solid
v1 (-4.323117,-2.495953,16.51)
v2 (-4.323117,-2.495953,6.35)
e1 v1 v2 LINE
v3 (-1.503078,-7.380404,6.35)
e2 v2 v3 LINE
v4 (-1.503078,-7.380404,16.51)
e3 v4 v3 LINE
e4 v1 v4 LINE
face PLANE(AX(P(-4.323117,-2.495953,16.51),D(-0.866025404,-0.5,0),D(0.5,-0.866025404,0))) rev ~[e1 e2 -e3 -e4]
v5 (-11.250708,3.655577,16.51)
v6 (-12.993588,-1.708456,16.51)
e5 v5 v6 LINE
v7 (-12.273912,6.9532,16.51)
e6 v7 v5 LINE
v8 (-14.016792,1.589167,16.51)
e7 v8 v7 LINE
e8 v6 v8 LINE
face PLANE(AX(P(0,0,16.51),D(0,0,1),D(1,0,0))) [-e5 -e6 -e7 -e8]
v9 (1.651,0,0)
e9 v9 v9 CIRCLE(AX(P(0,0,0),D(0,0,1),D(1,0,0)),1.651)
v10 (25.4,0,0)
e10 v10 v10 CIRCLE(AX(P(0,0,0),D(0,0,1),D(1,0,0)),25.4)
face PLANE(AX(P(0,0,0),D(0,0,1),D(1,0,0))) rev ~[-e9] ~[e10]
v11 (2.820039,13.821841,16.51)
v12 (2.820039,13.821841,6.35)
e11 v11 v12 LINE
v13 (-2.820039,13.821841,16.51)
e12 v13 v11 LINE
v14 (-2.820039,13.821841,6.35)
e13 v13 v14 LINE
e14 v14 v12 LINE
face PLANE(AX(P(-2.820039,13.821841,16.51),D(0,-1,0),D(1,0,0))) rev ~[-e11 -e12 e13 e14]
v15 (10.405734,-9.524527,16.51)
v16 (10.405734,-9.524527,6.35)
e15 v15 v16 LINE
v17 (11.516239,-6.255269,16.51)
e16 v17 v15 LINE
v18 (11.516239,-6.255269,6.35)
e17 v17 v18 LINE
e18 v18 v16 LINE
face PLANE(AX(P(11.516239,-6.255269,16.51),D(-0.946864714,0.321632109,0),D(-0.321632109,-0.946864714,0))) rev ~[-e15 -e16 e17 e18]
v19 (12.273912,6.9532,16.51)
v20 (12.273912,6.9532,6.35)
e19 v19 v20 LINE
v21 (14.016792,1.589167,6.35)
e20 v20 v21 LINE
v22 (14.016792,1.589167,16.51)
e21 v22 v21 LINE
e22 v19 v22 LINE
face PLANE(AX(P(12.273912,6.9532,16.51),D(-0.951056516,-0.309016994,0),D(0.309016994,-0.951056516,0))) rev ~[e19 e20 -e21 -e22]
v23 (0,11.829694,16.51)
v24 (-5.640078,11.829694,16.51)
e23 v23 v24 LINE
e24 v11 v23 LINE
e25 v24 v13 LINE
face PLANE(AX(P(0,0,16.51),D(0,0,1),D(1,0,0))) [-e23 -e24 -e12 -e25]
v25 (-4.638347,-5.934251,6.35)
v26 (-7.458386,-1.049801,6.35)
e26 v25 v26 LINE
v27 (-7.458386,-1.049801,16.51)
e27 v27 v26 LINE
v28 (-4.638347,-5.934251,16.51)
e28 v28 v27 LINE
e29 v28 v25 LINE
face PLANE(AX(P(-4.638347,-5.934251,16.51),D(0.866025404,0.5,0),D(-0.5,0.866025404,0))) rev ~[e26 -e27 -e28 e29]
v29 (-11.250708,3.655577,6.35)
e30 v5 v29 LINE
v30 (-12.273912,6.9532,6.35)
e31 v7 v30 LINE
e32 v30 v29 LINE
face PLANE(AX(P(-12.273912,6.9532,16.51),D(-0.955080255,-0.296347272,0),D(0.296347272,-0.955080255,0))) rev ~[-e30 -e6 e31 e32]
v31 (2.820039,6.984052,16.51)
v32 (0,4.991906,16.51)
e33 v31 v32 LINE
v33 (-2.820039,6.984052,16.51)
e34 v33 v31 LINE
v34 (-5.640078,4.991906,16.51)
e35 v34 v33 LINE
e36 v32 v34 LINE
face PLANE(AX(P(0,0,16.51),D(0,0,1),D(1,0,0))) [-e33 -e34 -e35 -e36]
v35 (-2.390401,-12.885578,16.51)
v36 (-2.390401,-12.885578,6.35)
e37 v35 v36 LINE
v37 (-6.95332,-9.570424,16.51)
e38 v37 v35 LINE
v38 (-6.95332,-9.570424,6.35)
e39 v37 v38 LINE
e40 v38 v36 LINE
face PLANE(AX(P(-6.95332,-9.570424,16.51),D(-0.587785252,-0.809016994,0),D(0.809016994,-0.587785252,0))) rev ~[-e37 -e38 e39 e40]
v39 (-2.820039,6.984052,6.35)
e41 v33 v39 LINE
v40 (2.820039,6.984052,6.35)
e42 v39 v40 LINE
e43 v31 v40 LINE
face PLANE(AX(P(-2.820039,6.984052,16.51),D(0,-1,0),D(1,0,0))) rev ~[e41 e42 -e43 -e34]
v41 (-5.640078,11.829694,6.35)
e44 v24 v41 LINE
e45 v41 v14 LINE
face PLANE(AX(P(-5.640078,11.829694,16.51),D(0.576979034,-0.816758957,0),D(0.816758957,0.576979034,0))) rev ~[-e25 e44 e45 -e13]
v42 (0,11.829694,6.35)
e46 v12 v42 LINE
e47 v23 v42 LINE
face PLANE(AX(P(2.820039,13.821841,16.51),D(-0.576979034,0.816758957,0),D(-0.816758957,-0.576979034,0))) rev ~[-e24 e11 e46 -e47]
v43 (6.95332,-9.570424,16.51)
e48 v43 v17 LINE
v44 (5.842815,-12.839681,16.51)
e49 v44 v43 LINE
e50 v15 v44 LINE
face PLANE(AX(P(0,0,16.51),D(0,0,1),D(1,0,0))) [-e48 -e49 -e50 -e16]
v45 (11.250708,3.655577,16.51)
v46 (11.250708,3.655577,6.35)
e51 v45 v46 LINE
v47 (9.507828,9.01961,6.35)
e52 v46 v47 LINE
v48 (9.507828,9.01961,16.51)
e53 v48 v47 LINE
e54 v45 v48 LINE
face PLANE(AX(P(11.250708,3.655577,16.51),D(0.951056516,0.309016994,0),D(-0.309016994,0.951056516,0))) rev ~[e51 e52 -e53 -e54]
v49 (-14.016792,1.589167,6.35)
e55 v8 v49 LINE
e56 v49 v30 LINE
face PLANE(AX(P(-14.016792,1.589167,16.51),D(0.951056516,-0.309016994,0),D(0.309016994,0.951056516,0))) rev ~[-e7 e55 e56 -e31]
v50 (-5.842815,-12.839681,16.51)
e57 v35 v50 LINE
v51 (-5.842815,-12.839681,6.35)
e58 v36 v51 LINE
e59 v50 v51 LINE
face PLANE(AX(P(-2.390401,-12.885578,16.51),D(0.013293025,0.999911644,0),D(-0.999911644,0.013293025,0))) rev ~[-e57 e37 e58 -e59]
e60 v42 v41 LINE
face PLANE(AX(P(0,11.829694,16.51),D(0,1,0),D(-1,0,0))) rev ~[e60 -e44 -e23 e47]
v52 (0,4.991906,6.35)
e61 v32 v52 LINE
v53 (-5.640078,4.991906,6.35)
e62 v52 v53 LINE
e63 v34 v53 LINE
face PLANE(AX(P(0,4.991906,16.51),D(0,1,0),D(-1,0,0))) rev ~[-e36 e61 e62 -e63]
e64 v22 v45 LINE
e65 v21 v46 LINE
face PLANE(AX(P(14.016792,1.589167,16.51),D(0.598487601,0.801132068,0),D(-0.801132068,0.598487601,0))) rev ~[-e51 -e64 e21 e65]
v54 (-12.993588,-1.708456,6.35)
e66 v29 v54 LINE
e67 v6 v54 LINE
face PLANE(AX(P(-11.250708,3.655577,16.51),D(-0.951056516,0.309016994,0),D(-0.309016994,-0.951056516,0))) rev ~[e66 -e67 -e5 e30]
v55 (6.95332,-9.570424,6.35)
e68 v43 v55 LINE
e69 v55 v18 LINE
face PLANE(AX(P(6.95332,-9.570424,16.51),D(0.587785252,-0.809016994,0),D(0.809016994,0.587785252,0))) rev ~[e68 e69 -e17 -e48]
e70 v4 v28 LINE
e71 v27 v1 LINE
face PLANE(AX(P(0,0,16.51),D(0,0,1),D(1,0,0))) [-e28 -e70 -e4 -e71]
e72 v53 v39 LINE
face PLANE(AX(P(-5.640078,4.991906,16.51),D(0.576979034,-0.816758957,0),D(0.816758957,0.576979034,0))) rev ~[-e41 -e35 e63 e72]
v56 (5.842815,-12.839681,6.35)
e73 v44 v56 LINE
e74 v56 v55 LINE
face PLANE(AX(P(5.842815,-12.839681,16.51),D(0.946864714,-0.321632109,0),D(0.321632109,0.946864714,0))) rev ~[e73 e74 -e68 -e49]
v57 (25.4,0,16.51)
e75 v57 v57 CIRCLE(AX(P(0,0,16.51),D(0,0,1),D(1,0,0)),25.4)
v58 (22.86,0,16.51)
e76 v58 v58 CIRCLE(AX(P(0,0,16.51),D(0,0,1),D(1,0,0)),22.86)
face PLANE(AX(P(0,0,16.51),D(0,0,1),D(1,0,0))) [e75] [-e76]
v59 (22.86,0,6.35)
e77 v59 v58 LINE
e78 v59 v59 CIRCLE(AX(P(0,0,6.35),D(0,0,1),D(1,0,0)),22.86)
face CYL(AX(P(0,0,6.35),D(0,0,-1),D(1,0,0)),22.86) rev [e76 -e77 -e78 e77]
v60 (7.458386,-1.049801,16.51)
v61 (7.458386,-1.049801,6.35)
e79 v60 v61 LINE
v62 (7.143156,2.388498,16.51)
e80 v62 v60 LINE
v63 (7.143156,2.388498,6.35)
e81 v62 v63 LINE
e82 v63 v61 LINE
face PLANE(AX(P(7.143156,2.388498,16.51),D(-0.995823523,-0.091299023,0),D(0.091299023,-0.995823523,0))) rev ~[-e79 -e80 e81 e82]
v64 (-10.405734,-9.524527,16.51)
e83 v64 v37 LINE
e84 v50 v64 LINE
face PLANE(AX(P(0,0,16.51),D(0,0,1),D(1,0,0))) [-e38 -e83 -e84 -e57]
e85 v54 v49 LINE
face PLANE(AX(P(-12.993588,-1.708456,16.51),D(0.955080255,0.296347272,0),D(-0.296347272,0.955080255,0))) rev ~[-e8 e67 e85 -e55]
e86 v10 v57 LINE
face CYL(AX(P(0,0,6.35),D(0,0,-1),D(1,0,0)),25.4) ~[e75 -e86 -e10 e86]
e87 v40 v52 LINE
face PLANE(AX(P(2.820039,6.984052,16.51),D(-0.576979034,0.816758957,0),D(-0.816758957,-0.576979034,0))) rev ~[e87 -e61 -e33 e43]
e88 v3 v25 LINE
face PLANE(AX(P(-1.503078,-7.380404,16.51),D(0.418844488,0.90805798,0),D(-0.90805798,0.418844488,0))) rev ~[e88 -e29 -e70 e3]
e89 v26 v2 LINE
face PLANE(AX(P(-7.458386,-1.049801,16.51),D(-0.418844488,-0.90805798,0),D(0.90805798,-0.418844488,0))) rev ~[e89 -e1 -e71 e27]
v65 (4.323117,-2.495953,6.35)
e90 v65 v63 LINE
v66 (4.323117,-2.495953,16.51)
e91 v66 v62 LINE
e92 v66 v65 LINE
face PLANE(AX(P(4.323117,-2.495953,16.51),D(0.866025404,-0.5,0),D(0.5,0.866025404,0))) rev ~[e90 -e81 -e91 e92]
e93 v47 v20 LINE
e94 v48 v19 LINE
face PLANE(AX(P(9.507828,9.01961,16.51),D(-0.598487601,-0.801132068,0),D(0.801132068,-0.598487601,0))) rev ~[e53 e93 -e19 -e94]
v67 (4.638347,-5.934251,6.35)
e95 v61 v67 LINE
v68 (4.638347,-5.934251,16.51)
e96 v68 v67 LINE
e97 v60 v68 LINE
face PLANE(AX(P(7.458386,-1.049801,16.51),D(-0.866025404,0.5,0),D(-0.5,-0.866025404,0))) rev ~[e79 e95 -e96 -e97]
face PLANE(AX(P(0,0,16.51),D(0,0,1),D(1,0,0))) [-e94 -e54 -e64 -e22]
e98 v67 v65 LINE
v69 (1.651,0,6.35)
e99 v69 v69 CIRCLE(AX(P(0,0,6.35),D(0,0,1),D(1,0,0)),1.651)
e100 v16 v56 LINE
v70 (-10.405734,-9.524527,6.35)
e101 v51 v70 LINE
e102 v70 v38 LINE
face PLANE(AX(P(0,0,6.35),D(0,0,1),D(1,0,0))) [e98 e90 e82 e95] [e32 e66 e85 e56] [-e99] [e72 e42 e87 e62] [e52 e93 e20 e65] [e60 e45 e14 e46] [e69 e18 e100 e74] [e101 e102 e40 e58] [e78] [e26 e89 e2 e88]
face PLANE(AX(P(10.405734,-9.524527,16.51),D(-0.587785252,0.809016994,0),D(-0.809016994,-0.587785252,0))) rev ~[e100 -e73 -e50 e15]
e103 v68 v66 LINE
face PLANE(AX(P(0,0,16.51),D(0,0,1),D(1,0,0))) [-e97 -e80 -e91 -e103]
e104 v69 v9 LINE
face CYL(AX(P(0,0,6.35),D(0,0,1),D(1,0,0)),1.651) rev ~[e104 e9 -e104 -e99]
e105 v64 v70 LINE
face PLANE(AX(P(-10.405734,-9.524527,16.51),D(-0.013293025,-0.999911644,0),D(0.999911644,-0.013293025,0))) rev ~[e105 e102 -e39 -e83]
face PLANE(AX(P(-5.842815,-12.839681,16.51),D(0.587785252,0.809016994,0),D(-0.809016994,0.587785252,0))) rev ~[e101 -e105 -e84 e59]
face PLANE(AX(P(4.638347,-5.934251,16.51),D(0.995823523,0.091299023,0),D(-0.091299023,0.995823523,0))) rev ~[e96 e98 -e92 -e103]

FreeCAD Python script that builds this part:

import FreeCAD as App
import Part
import Sketcher
from FreeCAD import Vector
Q = App.Units.Quantity


def add_polygon(sketch, points):
    """Adds a closed chain of lines whose ends are joined by coincident constraints."""
    first, n = sketch.GeometryCount, len(points)
    for a, b in zip(points, points[1:] + points[:1]):
        sketch.addGeometry(Part.LineSegment(App.Vector(*a, 0), App.Vector(*b, 0)), False)
    for i in range(n):
        sketch.addConstraint(Sketcher.Constraint("Coincident", first + i, 2, first + (i + 1) % n, 1))

doc = App.newDocument("Part")
params = doc.addObject("Spreadsheet::Sheet", "Params")
for row, (alias, value) in enumerate([
    ("sketch1_diameter", "2 in"),
    ("pad1_length", "0.25 in"),
    ("sketch2_diameter", "1.8 in"),
    ("pad2_length", "0.4 in"),
    ("sketch3_diameter", "1.8 in"),
    ("pocket1_length", "0.4 in"),
    ("sketch4_diameter", "2 in"),
    ("sketch4_diameter2", "1.8 in"),
    ("pad3_length", "0.4 in"),
    ("sketch5_diameter", "0.13 in"),
], start=1):
    params.set(f"A{row}", alias)
    params.set(f"B{row}", "=" + value)
    params.setAlias(f"B{row}", alias)

body = doc.addObject("PartDesign::Body", "Body")

sketch1 = doc.addObject("Sketcher::SketchObject", "Sketch")
body.addObject(sketch1)
sketch1.AttachmentSupport = (doc.XY_Plane, [""])
sketch1.MapMode = "FlatFace"
sketch1.addGeometry(Part.Circle(Vector(0, 0, 0), Vector(0, 0, 1), 25), False)
sketch1.addConstraint(Sketcher.Constraint("Coincident", 0, 3, -1, 1))
sketch1.addConstraint(Sketcher.Constraint("Diameter", 0, Q("2 in")))
sketch1.setExpression("Constraints[1]", "Params.sketch1_diameter")
pad1 = doc.addObject("PartDesign::Pad", "Pad")
body.addObject(pad1)
pad1.Profile = sketch1
pad1.setExpression("Length", "Params.pad1_length")

sketch2 = doc.addObject("Sketcher::SketchObject", "Sketch001")
body.addObject(sketch2)
sketch2.AttachmentSupport = (doc.XY_Plane, [""])
sketch2.MapMode = "FlatFace"
sketch2.AttachmentOffset = App.Placement(Vector(0, 0, 0.25 * 25.4), App.Rotation())
sketch2.addGeometry(Part.Circle(Vector(0, 0, 0), Vector(0, 0, 1), 23), False)
sketch2.addConstraint(Sketcher.Constraint("Coincident", 0, 3, -1, 1))
sketch2.addConstraint(Sketcher.Constraint("Diameter", 0, Q("1.8 in")))
sketch2.setExpression("Constraints[1]", "Params.sketch2_diameter")
pad2 = doc.addObject("PartDesign::Pad", "Pad001")
body.addObject(pad2)
pad2.Profile = sketch2
pad2.setExpression("Length", "Params.pad2_length")

sketch3 = doc.addObject("Sketcher::SketchObject", "Sketch002")
body.addObject(sketch3)
sketch3.AttachmentSupport = (doc.XY_Plane, [""])
sketch3.MapMode = "FlatFace"
sketch3.AttachmentOffset = App.Placement(Vector(0, 0, 0.65 * 25.4), App.Rotation())
sketch3.addGeometry(Part.Circle(Vector(0, 0, 0), Vector(0, 0, 1), 22.9), False)
add_polygon(sketch3, [(-5.8, -12.8), (-10.4, -9.5), (-7, -9.6), (-2.4, -12.9)])
add_polygon(sketch3, [(-4.6, -5.9), (-7.5, -1), (-4.3, -2.5), (-1.5, -7.4)])
add_polygon(sketch3, [(10.4, -9.5), (5.8, -12.8), (7, -9.6), (11.5, -6.3)])
add_polygon(sketch3, [(7.5, -1), (4.6, -5.9), (4.3, -2.5), (7.1, 2.4)])
add_polygon(sketch3, [(-14, 1.6), (-12.3, 7), (-11.3, 3.7), (-13, -1.7)])
add_polygon(sketch3, [(-2.8, 7), (2.8, 7), (0, 5), (-5.6, 5)])
add_polygon(sketch3, [(-2.8, 13.8), (2.8, 13.8), (0, 11.8), (-5.6, 11.8)])
add_polygon(sketch3, [(12.3, 7), (14, 1.6), (11.3, 3.7), (9.5, 9)])
sketch3.addConstraint(Sketcher.Constraint("Horizontal", 21))
sketch3.addConstraint(Sketcher.Constraint("Horizontal", 23))
sketch3.addConstraint(Sketcher.Constraint("Horizontal", 25))
sketch3.addConstraint(Sketcher.Constraint("Horizontal", 27))
sketch3.addConstraint(Sketcher.Constraint("Coincident", 0, 3, -1, 1))
sketch3.addConstraint(Sketcher.Constraint("Symmetric", 4, 2, 9, 2, -2))
sketch3.addConstraint(Sketcher.Constraint("Symmetric", 2, 2, 10, 2, -2))
sketch3.addConstraint(Sketcher.Constraint("Symmetric", 1, 2, 12, 2, -2))
sketch3.addConstraint(Sketcher.Constraint("Symmetric", 8, 2, 13, 2, -2))
sketch3.addConstraint(Sketcher.Constraint("Symmetric", 6, 2, 14, 2, -2))
sketch3.addConstraint(Sketcher.Constraint("Symmetric", 5, 2, 16, 2, -2))
sketch3.addConstraint(Sketcher.Constraint("Symmetric", 20, 2, 29, 2, -2))
sketch3.addConstraint(Sketcher.Constraint("Symmetric", 18, 2, 30, 2, -2))
sketch3.addConstraint(Sketcher.Constraint("Symmetric", 17, 2, 32, 2, -2))
sketch3.addConstraint(Sketcher.Constraint("PointOnObject", 22, 2, -2))
sketch3.addConstraint(Sketcher.Constraint("PointOnObject", 26, 2, -2))
sketch3.addConstraint(Sketcher.Constraint("Parallel", 1, 3))
sketch3.addConstraint(Sketcher.Constraint("Parallel", 2, 4))
sketch3.addConstraint(Sketcher.Constraint("Parallel", 5, 7))
sketch3.addConstraint(Sketcher.Constraint("Parallel", 6, 8))
sketch3.addConstraint(Sketcher.Constraint("Parallel", 9, 11))
sketch3.addConstraint(Sketcher.Constraint("Parallel", 10, 12))
sketch3.addConstraint(Sketcher.Constraint("Parallel", 13, 15))
sketch3.addConstraint(Sketcher.Constraint("Parallel", 14, 16))
sketch3.addConstraint(Sketcher.Constraint("Parallel", 17, 19))
sketch3.addConstraint(Sketcher.Constraint("Parallel", 18, 20))
sketch3.addConstraint(Sketcher.Constraint("Parallel", 22, 24))
sketch3.addConstraint(Sketcher.Constraint("Parallel", 24, 26))
sketch3.addConstraint(Sketcher.Constraint("Parallel", 26, 28))
sketch3.addConstraint(Sketcher.Constraint("Parallel", 29, 31))
sketch3.addConstraint(Sketcher.Constraint("Parallel", 30, 32))
sketch3.addConstraint(Sketcher.Constraint("Vertical", 21, 2, 25, 2))
sketch3.addConstraint(Sketcher.Constraint("Vertical", 23, 2, 27, 2))
sketch3.addConstraint(Sketcher.Constraint("Equal", 3, 5))
sketch3.addConstraint(Sketcher.Constraint("Equal", 4, 6))
sketch3.addConstraint(Sketcher.Constraint("Equal", 8, 10))
sketch3.addConstraint(Sketcher.Constraint("Equal", 12, 14))
sketch3.addConstraint(Sketcher.Constraint("Equal", 15, 17))
sketch3.addConstraint(Sketcher.Constraint("Equal", 16, 18))
sketch3.addConstraint(Sketcher.Constraint("Equal", 20, 22))
sketch3.addConstraint(Sketcher.Constraint("Equal", 28, 30))
sketch3.addConstraint(Sketcher.Constraint("Diameter", 0, Q("1.8 in")))
sketch3.addConstraint(Sketcher.Constraint("Angle", 1, Q("144 deg")))
sketch3.addConstraint(Sketcher.Constraint("Angle", 5, Q("120 deg")))
sketch3.addConstraint(Sketcher.Constraint("Angle", 17, Q("72 deg")))
sketch3.addConstraint(Sketcher.Constraint("DistanceX", 21, 1, 21, 2, Q("5.640078 mm")))
sketch3.addConstraint(Sketcher.Constraint("DistanceX", 3, 2, -1, 1, Q("2.390401 mm")))
sketch3.addConstraint(Sketcher.Constraint("DistanceY", 5, 2, -1, 1, Q("1.049801 mm")))
sketch3.addConstraint(Sketcher.Constraint("DistanceY", -1, 1, 15, 2, Q("2.388498 mm")))
sketch3.addConstraint(Sketcher.Constraint("DistanceY", -1, 1, 17, 2, Q("6.9532 mm")))
sketch3.addConstraint(Sketcher.Constraint("DistanceX", 19, 2, 5, 2, Q("5.535202 mm")))
sketch3.addConstraint(Sketcher.Constraint("Distance", 1, Q("5.640078 mm")))
sketch3.addConstraint(Sketcher.Constraint("DistanceY", 3, 2, -1, 1, Q("12.885578 mm")))
sketch3.addConstraint(Sketcher.Constraint("DistanceX", 7, 2, -1, 1, Q("1.503078 mm")))
sketch3.addConstraint(Sketcher.Constraint("DistanceX", -1, 1, 21, 2, Q("2.820039 mm")))
sketch3.addConstraint(Sketcher.Constraint("DistanceY", -1, 1, 21, 2, Q("6.984052 mm")))
sketch3.addConstraint(Sketcher.Constraint("DistanceY", -1, 1, 25, 2, Q("13.821841 mm")))
sketch3.setExpression("Constraints[73]", "Params.sketch3_diameter")
pocket1 = doc.addObject("PartDesign::Pocket", "Pocket")
body.addObject(pocket1)
pocket1.Profile = sketch3
pocket1.setExpression("Length", "Params.pocket1_length")

sketch4 = doc.addObject("Sketcher::SketchObject", "Sketch003")
body.addObject(sketch4)
sketch4.AttachmentSupport = (doc.XY_Plane, [""])
sketch4.MapMode = "FlatFace"
sketch4.AttachmentOffset = App.Placement(Vector(0, 0, 0.25 * 25.4), App.Rotation())
sketch4.addGeometry(Part.Circle(Vector(0, 0, 0), Vector(0, 0, 1), 25), False)
sketch4.addGeometry(Part.Circle(Vector(0, 0, 0), Vector(0, 0, 1), 23), False)
sketch4.addConstraint(Sketcher.Constraint("Coincident", 0, 3, -1, 1))
sketch4.addConstraint(Sketcher.Constraint("Coincident", 1, 3, -1, 1))
sketch4.addConstraint(Sketcher.Constraint("Diameter", 0, Q("2 in")))
sketch4.addConstraint(Sketcher.Constraint("Diameter", 1, Q("1.8 in")))
sketch4.setExpression("Constraints[2]", "Params.sketch4_diameter")
sketch4.setExpression("Constraints[3]", "Params.sketch4_diameter2")
pad3 = doc.addObject("PartDesign::Pad", "Pad002")
body.addObject(pad3)
pad3.Profile = sketch4
pad3.setExpression("Length", "Params.pad3_length")

sketch5 = doc.addObject("Sketcher::SketchObject", "Sketch004")
body.addObject(sketch5)
sketch5.AttachmentSupport = (doc.XY_Plane, [""])
sketch5.MapMode = "FlatFace"
sketch5.AttachmentOffset = App.Placement(Vector(0, 0, 0.25 * 25.4), App.Rotation())
sketch5.addGeometry(Part.Circle(Vector(0, 0, 0), Vector(0, 0, 1), 1.7), False)
sketch5.addConstraint(Sketcher.Constraint("Coincident", 0, 3, -1, 1))
sketch5.addConstraint(Sketcher.Constraint("Diameter", 0, Q("0.13 in")))
sketch5.setExpression("Constraints[1]", "Params.sketch5_diameter")
pocket2 = doc.addObject("PartDesign::Pocket", "Pocket001")
body.addObject(pocket2)
pocket2.Profile = sketch5
pocket2.Type = "ThroughAll"

doc.recompute()
